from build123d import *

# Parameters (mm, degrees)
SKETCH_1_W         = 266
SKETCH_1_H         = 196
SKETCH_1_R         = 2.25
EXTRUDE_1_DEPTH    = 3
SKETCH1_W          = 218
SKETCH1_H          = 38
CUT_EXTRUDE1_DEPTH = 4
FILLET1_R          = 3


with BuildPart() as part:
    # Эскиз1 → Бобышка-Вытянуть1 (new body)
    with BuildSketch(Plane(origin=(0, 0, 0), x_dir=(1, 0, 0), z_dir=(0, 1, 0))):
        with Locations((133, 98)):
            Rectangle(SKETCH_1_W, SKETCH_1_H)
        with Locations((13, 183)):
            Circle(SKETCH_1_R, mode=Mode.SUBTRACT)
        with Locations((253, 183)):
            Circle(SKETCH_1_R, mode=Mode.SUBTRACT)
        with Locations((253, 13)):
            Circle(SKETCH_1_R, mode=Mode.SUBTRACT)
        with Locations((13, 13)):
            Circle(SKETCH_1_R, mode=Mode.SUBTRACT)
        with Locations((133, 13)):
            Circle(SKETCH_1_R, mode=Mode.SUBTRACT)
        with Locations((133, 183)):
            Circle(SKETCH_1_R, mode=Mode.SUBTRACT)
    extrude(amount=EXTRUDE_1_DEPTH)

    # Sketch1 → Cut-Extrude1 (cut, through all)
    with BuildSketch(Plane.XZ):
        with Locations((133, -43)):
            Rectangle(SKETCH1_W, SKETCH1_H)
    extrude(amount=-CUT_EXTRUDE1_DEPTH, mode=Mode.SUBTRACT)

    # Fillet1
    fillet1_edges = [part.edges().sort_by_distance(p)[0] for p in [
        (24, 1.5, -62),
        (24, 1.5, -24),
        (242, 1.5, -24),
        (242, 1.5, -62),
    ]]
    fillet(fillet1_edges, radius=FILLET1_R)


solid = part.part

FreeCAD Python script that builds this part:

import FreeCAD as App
import Part
import Sketcher

V = App.Vector


def edges_at(feature, points):
    """Names of the edges that pass closest to the given points."""
    edges = feature.Shape.Edges
    near = lambda p: min(range(len(edges)), key=lambda i: edges[i].distToShape(Part.Vertex(*p))[0])
    return sorted({f"Edge{near(p) + 1}" for p in points})

doc = App.newDocument("Part")
body = doc.addObject("PartDesign::Body", "Body")

sketch1 = body.newObject("Sketcher::SketchObject", "Sketch")
sketch1.AttachmentSupport = (doc.getObject("XZ_Plane"), [""])
sketch1.MapMode = "FlatFace"
sketch1.addGeometry([
    Part.LineSegment(V(0, -196, 0), V(0, 0, 0)),
    Part.LineSegment(V(0, 0, 0), V(266, 0, 0)),
    Part.LineSegment(V(266, 0, 0), V(266, -196, 0)),
    Part.LineSegment(V(266, -196, 0), V(0, -196, 0)),
    Part.Circle(V(13, -13, 0), V(0, 0, 1), 2.25),
    Part.Circle(V(133, -13, 0), V(0, 0, 1), 2.25),
    Part.Circle(V(253, -13, 0), V(0, 0, 1), 2.25),
    Part.Circle(V(13, -183, 0), V(0, 0, 1), 2.25),
    Part.Circle(V(133, -183, 0), V(0, 0, 1), 2.25),
    Part.Circle(V(253, -183, 0), V(0, 0, 1), 2.25),
], False)
sketch1.addConstraint([
    Sketcher.Constraint("Coincident", 0, 2, 1, 1),
    Sketcher.Constraint("Coincident", 1, 2, 2, 1),
    Sketcher.Constraint("Coincident", 2, 2, 3, 1),
    Sketcher.Constraint("Coincident", 3, 2, 0, 1),
    Sketcher.Constraint("Vertical", 0),
    Sketcher.Constraint("Horizontal", 1),
    Sketcher.Constraint("Vertical", 2),
    Sketcher.Constraint("Horizontal", 3),
    Sketcher.Constraint("Coincident", 0, 2, -1, 1),
    Sketcher.Constraint("Equal", 4, 5),
    Sketcher.Constraint("Equal", 5, 6),
    Sketcher.Constraint("Equal", 6, 7),
    Sketcher.Constraint("Equal", 7, 8),
    Sketcher.Constraint("Equal", 8, 9),
    Sketcher.Constraint("Horizontal", 4, 3, 5, 3),
    Sketcher.Constraint("Horizontal", 5, 3, 6, 3),
    Sketcher.Constraint("Horizontal", 7, 3, 8, 3),
    Sketcher.Constraint("Horizontal", 8, 3, 9, 3),
    Sketcher.Constraint("Vertical", 4, 3, 7, 3),
    Sketcher.Constraint("Vertical", 5, 3, 8, 3),
    Sketcher.Constraint("Vertical", 6, 3, 9, 3),
    Sketcher.Constraint("Diameter", 4, 4.5),
    Sketcher.Constraint("DistanceX", 1, 1, 1, 2, 266.0),
    Sketcher.Constraint("DistanceY", 0, 1, 0, 2, 196.0),
    Sketcher.Constraint("DistanceX", -1, 1, 4, 3, 13.0),
    Sketcher.Constraint("DistanceY", 4, 3, -1, 1, 13.0),
    Sketcher.Constraint("DistanceX", -1, 1, 5, 3, 133.0),
    Sketcher.Constraint("DistanceX", -1, 1, 6, 3, 253.0),
    Sketcher.Constraint("DistanceY", 7, 3, -1, 1, 183.0),
])
pad1 = body.newObject("PartDesign::Pad", "Pad")
pad1.Profile = sketch1
pad1.Length = 3
pad1.Reversed = True

sketch2 = body.newObject("Sketcher::SketchObject", "Sketch001")
sketch2.AttachmentSupport = (doc.getObject("XZ_Plane"), [""])
sketch2.MapMode = "FlatFace"
sketch2.addGeometry([
    Part.LineSegment(V(24, -24, 0), V(24, -62, 0)),
    Part.LineSegment(V(24, -62, 0), V(242, -62, 0)),
    Part.LineSegment(V(242, -62, 0), V(242, -24, 0)),
    Part.LineSegment(V(242, -24, 0), V(24, -24, 0)),
], False)
sketch2.addConstraint([
    Sketcher.Constraint("Coincident", 0, 2, 1, 1),
    Sketcher.Constraint("Coincident", 1, 2, 2, 1),
    Sketcher.Constraint("Coincident", 2, 2, 3, 1),
    Sketcher.Constraint("Coincident", 3, 2, 0, 1),
    Sketcher.Constraint("Vertical", 0),
    Sketcher.Constraint("Horizontal", 1),
    Sketcher.Constraint("Vertical", 2),
    Sketcher.Constraint("Horizontal", 3),
    Sketcher.Constraint("DistanceX", 1, 1, 1, 2, 218.0),
    Sketcher.Constraint("DistanceY", 0, 2, 0, 1, 38.0),
    Sketcher.Constraint("DistanceX", -1, 1, 0, 2, 24.0),
    Sketcher.Constraint("DistanceY", 0, 2, -1, 1, 62.0),
])
pocket1 = body.newObject("PartDesign::Pocket", "Pocket")
pocket1.Profile = sketch2
pocket1.Type = "ThroughAll"
doc.recompute()

fillet = body.newObject("PartDesign::Fillet", "Fillet")
fillet.Base = (pocket1, edges_at(pocket1, [
    (24, 1.5, -62),
    (24, 1.5, -24),
    (242, 1.5, -24),
    (242, 1.5, -62),
]))
fillet.Radius = 3

doc.recompute()
